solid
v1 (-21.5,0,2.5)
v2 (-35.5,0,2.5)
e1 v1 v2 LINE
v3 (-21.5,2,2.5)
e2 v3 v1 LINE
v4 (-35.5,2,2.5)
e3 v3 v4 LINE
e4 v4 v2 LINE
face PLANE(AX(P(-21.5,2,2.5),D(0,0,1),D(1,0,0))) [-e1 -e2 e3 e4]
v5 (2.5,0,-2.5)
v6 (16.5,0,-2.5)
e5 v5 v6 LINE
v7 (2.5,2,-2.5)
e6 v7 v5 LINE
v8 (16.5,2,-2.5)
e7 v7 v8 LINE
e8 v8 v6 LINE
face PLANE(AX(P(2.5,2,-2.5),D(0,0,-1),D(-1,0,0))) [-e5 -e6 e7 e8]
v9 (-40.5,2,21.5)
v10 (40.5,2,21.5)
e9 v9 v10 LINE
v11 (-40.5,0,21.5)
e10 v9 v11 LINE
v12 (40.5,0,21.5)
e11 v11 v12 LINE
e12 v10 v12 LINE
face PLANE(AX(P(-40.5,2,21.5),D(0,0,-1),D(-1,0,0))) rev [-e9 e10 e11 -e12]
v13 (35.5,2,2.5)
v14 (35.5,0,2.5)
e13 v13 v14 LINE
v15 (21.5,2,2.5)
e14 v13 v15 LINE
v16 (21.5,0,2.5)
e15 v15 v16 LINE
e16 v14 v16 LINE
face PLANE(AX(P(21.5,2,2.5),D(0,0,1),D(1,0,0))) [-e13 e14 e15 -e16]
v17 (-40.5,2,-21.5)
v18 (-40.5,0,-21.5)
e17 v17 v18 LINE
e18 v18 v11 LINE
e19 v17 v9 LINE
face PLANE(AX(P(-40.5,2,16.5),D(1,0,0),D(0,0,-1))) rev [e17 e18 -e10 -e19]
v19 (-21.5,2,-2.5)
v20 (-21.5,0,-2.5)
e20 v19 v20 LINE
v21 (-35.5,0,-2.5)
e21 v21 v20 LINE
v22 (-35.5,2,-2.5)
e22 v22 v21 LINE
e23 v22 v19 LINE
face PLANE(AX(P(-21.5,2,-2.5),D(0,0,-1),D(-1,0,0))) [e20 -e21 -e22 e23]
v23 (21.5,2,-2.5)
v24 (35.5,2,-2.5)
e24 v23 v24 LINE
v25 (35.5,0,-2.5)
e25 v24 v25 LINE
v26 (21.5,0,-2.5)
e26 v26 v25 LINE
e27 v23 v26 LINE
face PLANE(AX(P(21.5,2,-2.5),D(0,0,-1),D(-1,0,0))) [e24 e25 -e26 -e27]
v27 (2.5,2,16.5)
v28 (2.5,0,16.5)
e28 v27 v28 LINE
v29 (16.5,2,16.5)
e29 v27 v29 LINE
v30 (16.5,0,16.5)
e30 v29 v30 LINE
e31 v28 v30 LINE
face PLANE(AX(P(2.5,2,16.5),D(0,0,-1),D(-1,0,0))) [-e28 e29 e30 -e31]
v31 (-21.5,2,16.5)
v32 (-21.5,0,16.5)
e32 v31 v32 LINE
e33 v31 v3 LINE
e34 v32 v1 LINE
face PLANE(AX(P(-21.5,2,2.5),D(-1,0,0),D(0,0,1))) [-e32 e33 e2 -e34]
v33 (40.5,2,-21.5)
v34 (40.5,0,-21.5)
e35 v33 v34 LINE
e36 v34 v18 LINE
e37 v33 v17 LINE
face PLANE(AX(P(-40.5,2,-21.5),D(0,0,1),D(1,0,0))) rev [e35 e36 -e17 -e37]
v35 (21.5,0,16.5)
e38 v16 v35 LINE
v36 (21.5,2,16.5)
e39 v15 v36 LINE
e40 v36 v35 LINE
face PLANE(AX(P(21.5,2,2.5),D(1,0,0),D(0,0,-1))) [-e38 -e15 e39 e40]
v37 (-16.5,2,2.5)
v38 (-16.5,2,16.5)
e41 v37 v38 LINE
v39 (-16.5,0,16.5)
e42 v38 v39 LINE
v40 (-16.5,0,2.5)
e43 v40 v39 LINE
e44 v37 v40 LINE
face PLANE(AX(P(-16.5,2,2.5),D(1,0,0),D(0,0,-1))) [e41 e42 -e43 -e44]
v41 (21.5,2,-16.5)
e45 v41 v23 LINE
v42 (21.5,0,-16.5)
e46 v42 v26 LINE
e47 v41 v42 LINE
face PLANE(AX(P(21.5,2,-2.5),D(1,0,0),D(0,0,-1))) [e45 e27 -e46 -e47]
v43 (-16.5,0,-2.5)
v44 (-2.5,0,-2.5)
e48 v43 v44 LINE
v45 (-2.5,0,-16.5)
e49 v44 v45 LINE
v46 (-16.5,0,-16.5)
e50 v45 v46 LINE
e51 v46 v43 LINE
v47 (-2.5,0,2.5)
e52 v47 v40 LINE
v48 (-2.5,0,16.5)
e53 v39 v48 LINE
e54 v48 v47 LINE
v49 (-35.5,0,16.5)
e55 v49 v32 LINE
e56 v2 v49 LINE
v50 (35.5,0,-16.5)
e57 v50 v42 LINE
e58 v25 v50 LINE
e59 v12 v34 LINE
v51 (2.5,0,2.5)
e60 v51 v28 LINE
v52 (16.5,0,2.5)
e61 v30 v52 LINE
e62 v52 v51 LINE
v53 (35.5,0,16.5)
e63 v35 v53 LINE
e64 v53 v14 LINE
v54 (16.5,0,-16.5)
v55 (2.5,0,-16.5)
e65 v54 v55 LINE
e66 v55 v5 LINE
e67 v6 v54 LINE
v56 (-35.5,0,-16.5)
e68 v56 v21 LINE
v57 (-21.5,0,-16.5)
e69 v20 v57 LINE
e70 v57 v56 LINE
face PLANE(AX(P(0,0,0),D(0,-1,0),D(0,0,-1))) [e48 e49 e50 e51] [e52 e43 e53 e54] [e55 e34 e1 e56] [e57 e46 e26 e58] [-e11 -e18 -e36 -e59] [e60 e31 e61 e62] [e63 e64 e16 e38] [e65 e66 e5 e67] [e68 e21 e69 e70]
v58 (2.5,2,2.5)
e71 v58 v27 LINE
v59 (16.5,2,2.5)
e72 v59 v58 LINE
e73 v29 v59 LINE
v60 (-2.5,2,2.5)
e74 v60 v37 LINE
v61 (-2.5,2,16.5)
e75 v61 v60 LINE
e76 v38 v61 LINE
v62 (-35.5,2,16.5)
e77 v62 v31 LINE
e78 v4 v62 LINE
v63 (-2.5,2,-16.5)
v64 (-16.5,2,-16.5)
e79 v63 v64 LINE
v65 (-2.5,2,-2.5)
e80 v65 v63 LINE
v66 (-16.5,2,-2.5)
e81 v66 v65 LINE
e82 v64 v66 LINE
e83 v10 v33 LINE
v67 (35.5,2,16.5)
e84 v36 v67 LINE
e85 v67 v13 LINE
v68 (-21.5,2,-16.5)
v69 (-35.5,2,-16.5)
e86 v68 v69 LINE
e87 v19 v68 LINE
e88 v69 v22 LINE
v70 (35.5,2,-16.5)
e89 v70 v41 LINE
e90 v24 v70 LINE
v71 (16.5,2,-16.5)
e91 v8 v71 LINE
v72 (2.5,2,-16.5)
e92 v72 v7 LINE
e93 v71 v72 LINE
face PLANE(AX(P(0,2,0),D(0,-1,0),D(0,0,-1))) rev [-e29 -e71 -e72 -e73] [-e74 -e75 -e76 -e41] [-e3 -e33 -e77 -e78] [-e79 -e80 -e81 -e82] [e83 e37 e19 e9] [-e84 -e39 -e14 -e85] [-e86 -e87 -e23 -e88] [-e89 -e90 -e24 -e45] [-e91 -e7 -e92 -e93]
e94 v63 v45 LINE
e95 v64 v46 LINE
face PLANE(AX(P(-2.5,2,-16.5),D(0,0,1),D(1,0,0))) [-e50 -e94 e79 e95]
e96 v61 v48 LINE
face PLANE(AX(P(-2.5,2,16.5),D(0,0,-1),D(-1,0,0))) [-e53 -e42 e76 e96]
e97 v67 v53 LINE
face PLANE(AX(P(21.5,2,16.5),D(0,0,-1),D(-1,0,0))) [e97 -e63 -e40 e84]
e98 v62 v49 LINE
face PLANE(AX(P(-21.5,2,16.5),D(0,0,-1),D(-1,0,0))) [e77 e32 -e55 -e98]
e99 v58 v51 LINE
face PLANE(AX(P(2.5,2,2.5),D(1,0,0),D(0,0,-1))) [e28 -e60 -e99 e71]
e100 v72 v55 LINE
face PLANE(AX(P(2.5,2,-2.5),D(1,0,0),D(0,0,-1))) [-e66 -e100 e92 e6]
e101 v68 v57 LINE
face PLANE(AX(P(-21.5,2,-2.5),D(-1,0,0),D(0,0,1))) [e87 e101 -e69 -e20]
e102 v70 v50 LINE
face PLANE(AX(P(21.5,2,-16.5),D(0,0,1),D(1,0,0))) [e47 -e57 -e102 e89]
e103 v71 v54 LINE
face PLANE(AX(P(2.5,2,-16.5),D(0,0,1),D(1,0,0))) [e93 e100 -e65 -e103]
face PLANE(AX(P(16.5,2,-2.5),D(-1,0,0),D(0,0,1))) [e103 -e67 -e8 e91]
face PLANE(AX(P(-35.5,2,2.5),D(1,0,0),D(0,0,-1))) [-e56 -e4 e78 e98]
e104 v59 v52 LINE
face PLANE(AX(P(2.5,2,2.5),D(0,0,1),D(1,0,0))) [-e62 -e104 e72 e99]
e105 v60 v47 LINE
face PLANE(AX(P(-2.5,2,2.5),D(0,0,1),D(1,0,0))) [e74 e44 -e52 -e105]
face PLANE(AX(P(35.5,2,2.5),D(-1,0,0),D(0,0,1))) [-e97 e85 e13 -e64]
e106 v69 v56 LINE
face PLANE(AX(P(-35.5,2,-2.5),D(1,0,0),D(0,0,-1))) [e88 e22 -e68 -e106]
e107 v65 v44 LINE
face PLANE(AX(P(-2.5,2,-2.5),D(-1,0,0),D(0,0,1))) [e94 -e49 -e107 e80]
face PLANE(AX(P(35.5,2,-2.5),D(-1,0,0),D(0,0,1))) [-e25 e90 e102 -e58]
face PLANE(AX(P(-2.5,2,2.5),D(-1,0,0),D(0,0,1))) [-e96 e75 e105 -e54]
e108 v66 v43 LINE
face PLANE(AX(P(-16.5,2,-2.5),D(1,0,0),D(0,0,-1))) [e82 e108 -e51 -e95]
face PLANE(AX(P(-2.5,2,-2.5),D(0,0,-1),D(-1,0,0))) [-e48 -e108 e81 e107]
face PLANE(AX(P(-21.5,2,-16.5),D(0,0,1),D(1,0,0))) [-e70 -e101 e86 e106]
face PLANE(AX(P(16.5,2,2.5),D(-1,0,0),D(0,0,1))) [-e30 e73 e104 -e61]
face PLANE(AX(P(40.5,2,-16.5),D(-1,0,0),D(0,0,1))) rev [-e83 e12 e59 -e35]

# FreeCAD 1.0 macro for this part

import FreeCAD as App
import Part
import Sketcher

V = App.Vector


def add_polygon(sketch, points):
    """Adds a closed chain of lines whose ends are joined by coincident constraints."""
    first, n = sketch.GeometryCount, len(points)
    for a, b in zip(points, points[1:] + points[:1]):
        sketch.addGeometry(Part.LineSegment(App.Vector(*a, 0), App.Vector(*b, 0)), False)
    for i in range(n):
        sketch.addConstraint(Sketcher.Constraint("Coincident", first + i, 2, first + (i + 1) % n, 1))

doc = App.newDocument("Part")
body = doc.addObject("PartDesign::Body", "Body")

# Sketch on XZ plane
sketch1 = body.newObject("Sketcher::SketchObject", "Sketch")
sketch1.AttachmentSupport = (doc.getObject("XZ_Plane"), [""])
sketch1.MapMode = "FlatFace"
add_polygon(sketch1, [(40, -22), (-40, -22), (-40, 22), (40, 22)])  # lines 0-3
add_polygon(sketch1, [(22, 16), (22, 2), (36, 2), (36, 16)])  # lines 4-7
add_polygon(sketch1, [(2, 16), (2, 2), (16, 2), (16, 16)])  # lines 8-11
add_polygon(sketch1, [(-16, 16), (-16, 2), (-2, 2), (-2, 16)])  # lines 12-15
add_polygon(sketch1, [(-36, 16), (-36, 2), (-22, 2), (-22, 16)])  # lines 16-19
add_polygon(sketch1, [(22, -2), (22, -16), (36, -16), (36, -2)])  # lines 20-23
add_polygon(sketch1, [(2, -2), (2, -16), (16, -16), (16, -2)])  # lines 24-27
add_polygon(sketch1, [(-16, -2), (-16, -16), (-2, -16), (-2, -2)])  # lines 28-31
add_polygon(sketch1, [(-36, -2), (-36, -16), (-22, -16), (-22, -2)])  # lines 32-35
sketch1.addConstraint(Sketcher.Constraint("Horizontal", 0))
sketch1.addConstraint(Sketcher.Constraint("Vertical", 1))
sketch1.addConstraint(Sketcher.Constraint("Horizontal", 2))
sketch1.addConstraint(Sketcher.Constraint("Vertical", 3))
sketch1.addConstraint(Sketcher.Constraint("Vertical", 4))
sketch1.addConstraint(Sketcher.Constraint("Horizontal", 5))
sketch1.addConstraint(Sketcher.Constraint("Vertical", 6))
sketch1.addConstraint(Sketcher.Constraint("Horizontal", 7))
sketch1.addConstraint(Sketcher.Constraint("Vertical", 8))
sketch1.addConstraint(Sketcher.Constraint("Horizontal", 9))
sketch1.addConstraint(Sketcher.Constraint("Vertical", 10))
sketch1.addConstraint(Sketcher.Constraint("Horizontal", 11))
sketch1.addConstraint(Sketcher.Constraint("Vertical", 12))
sketch1.addConstraint(Sketcher.Constraint("Horizontal", 13))
sketch1.addConstraint(Sketcher.Constraint("Vertical", 14))
sketch1.addConstraint(Sketcher.Constraint("Horizontal", 15))
sketch1.addConstraint(Sketcher.Constraint("Vertical", 16))
sketch1.addConstraint(Sketcher.Constraint("Horizontal", 17))
sketch1.addConstraint(Sketcher.Constraint("Vertical", 18))
sketch1.addConstraint(Sketcher.Constraint("Horizontal", 19))
sketch1.addConstraint(Sketcher.Constraint("Vertical", 20))
sketch1.addConstraint(Sketcher.Constraint("Horizontal", 21))
sketch1.addConstraint(Sketcher.Constraint("Vertical", 22))
sketch1.addConstraint(Sketcher.Constraint("Horizontal", 23))
sketch1.addConstraint(Sketcher.Constraint("Vertical", 24))
sketch1.addConstraint(Sketcher.Constraint("Horizontal", 25))
sketch1.addConstraint(Sketcher.Constraint("Vertical", 26))
sketch1.addConstraint(Sketcher.Constraint("Horizontal", 27))
sketch1.addConstraint(Sketcher.Constraint("Vertical", 28))
sketch1.addConstraint(Sketcher.Constraint("Horizontal", 29))
sketch1.addConstraint(Sketcher.Constraint("Vertical", 30))
sketch1.addConstraint(Sketcher.Constraint("Horizontal", 31))
sketch1.addConstraint(Sketcher.Constraint("Vertical", 32))
sketch1.addConstraint(Sketcher.Constraint("Horizontal", 33))
sketch1.addConstraint(Sketcher.Constraint("Vertical", 34))
sketch1.addConstraint(Sketcher.Constraint("Horizontal", 35))
sketch1.addConstraint(Sketcher.Constraint("Symmetric", 0, 2, 2, 2, -1, 1))
sketch1.addConstraint(Sketcher.Constraint("Symmetric", 18, 2, 20, 2, -1, 1))
sketch1.addConstraint(Sketcher.Constraint("Symmetric", 16, 2, 22, 2, -1, 1))
sketch1.addConstraint(Sketcher.Constraint("Symmetric", 14, 2, 24, 2, -1, 1))
sketch1.addConstraint(Sketcher.Constraint("Symmetric", 12, 2, 26, 2, -1, 1))
sketch1.addConstraint(Sketcher.Constraint("Symmetric", 10, 2, 28, 2, -1, 1))
sketch1.addConstraint(Sketcher.Constraint("Symmetric", 8, 2, 30, 2, -1, 1))
sketch1.addConstraint(Sketcher.Constraint("Symmetric", 6, 2, 32, 2, -1, 1))
sketch1.addConstraint(Sketcher.Constraint("Symmetric", 4, 2, 34, 2, -1, 1))
sketch1.addConstraint(Sketcher.Constraint("Symmetric", 9, 2, 12, 2, -2))
sketch1.addConstraint(Sketcher.Constraint("Symmetric", 11, 2, 14, 2, -2))
sketch1.addConstraint(Sketcher.Constraint("Symmetric", 5, 2, 16, 2, -2))
sketch1.addConstraint(Sketcher.Constraint("Symmetric", 7, 2, 18, 2, -2))
sketch1.addConstraint(Sketcher.Constraint("Horizontal", 5, 2, 8, 2))
sketch1.addConstraint(Sketcher.Constraint("Horizontal", 7, 2, 10, 2))
sketch1.addConstraint(Sketcher.Constraint("Equal", 7, 9))
sketch1.addConstraint(Sketcher.Constraint("Equal", 35, 4))
sketch1.addConstraint(Sketcher.Constraint("DistanceX", 0, 2, 0, 1, 81.0))
sketch1.addConstraint(Sketcher.Constraint("DistanceX", 5, 1, 5, 2, 14.0))
sketch1.addConstraint(Sketcher.Constraint("DistanceY", 1, 1, 1, 2, 43.0))
sketch1.addConstraint(Sketcher.Constraint("DistanceX", 4, 2, 2, 2, 19.0))
sketch1.addConstraint(Sketcher.Constraint("DistanceY", 4, 2, 2, 2, 19.0))
sketch1.addConstraint(Sketcher.Constraint("DistanceX", 8, 2, 4, 2, 19.0))
pad1 = body.newObject("PartDesign::Pad", "Pad")
pad1.Profile = sketch1
pad1.Length = 2
pad1.Reversed = True

doc.recompute()
